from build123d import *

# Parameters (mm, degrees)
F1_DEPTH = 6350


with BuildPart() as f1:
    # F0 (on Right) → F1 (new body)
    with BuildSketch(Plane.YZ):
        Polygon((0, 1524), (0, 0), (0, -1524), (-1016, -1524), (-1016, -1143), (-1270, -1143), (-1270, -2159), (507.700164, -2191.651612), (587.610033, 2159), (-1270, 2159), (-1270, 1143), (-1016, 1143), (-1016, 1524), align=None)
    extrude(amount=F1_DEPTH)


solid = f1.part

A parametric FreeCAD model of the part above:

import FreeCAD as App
import Part
import Sketcher
Q = App.Units.Quantity


def add_polygon(sketch, points):
    """Adds a closed chain of lines whose ends are joined by coincident constraints."""
    first, n = sketch.GeometryCount, len(points)
    for a, b in zip(points, points[1:] + points[:1]):
        sketch.addGeometry(Part.LineSegment(App.Vector(*a, 0), App.Vector(*b, 0)), False)
    for i in range(n):
        sketch.addConstraint(Sketcher.Constraint("Coincident", first + i, 2, first + (i + 1) % n, 1))

doc = App.newDocument("Part")
params = doc.addObject("Spreadsheet::Sheet", "Params")
for row, (alias, value) in enumerate([
    ("sketch1_width", "40 in"),
    ("sketch1_width2", "10 in"),
    ("sketch1_height", "120 in"),
    ("sketch1_height2", "15 in"),
    ("sketch1_length", "70 in"),
    ("pad1_length", "250 in"),
], start=1):
    params.set(f"A{row}", alias)
    params.set(f"B{row}", "=" + value)
    params.setAlias(f"B{row}", alias)

body = doc.addObject("PartDesign::Body", "Body")

# Sketch on YZ plane
sketch1 = body.newObject("Sketcher::SketchObject", "Sketch")
sketch1.AttachmentSupport = (doc.getObject("YZ_Plane"), [""])
sketch1.MapMode = "FlatFace"
add_polygon(sketch1, [(0, 1524), (0, -1524), (-1016, -1524), (-1016, -1143), (-1270, -1143), (-1270, -2159), (508, -2192), (588, 2159), (-1270, 2159), (-1270, 1143), (-1016, 1143), (-1016, 1524)])  # lines 0-11
sketch1.addConstraint([
    Sketcher.Constraint("Vertical", 0),
    Sketcher.Constraint("Horizontal", 1),
    Sketcher.Constraint("Vertical", 2),
    Sketcher.Constraint("Horizontal", 3),
    Sketcher.Constraint("Vertical", 4),
    Sketcher.Constraint("Horizontal", 7),
    Sketcher.Constraint("Vertical", 8),
    Sketcher.Constraint("Horizontal", 9),
    Sketcher.Constraint("Vertical", 10),
    Sketcher.Constraint("Horizontal", 11),
    Sketcher.Constraint("Symmetric", 0, 2, 11, 2, -1, 1),
    Sketcher.Constraint("Symmetric", 4, 2, 7, 2, -1),
    Sketcher.Constraint("Symmetric", 2, 2, 9, 2, -1),
    Sketcher.Constraint("Perpendicular", 5, 6),
    Sketcher.Constraint("Equal", 11, 4),
    Sketcher.Constraint("DistanceX", 1, 2, 1, 1, Q("40 in")),
    Sketcher.Constraint("DistanceX", 3, 2, 3, 1, Q("10 in")),
    Sketcher.Constraint("DistanceY", 0, 2, 0, 1, Q("120 in")),
    Sketcher.Constraint("DistanceY", 2, 1, 2, 2, Q("15 in")),
    Sketcher.Constraint("Distance", 5, Q("70 in")),
    Sketcher.Constraint("DistanceX", 7, 2, 7, 1, 1857.610033),
])
sketch1.setExpression("Constraints[27]", "Params.sketch1_width")
sketch1.setExpression("Constraints[28]", "Params.sketch1_width2")
sketch1.setExpression("Constraints[29]", "Params.sketch1_height")
sketch1.setExpression("Constraints[30]", "Params.sketch1_height2")
sketch1.setExpression("Constraints[31]", "Params.sketch1_length")
pad1 = body.newObject("PartDesign::Pad", "Pad")
pad1.Profile = sketch1
pad1.setExpression("Length", "Params.pad1_length")

doc.recompute()
